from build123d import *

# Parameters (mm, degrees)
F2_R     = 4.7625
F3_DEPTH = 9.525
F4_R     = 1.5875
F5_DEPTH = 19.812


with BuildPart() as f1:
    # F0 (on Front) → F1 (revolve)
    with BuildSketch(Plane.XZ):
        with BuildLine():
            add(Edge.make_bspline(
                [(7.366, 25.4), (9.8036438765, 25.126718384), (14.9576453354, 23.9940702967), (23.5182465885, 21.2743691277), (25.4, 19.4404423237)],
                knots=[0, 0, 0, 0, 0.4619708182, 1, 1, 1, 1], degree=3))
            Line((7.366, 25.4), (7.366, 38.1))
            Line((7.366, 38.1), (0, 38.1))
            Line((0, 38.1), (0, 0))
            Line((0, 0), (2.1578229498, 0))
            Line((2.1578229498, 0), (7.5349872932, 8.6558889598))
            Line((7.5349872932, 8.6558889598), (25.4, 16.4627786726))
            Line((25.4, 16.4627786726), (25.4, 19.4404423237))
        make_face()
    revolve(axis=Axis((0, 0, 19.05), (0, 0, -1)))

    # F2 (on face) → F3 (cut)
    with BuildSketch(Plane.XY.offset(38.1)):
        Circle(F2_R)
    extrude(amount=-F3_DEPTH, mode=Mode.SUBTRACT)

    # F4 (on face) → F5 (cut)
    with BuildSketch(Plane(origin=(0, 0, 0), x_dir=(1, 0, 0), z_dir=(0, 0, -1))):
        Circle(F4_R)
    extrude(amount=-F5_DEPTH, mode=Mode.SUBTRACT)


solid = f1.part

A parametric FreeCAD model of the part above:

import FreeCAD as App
import Part
import Sketcher

V = App.Vector
Q = App.Units.Quantity

doc = App.newDocument("Part")
body = doc.addObject("PartDesign::Body", "Body")

# Sketch on XZ plane
sketch1 = doc.addObject("Sketcher::SketchObject", "Sketch")
body.addObject(sketch1)
sketch1.AttachmentSupport = (doc.XZ_Plane, [""])
sketch1.MapMode = "FlatFace"
sketch1.addGeometry(Part.BSplineCurve([V(7.366, 25.4, 0), V(9.803644, 25.126718, 0), V(14.957645, 23.99407, 0), V(23.518247, 21.274369, 0), V(25.4, 19.440442, 0)], [4, 1, 4], [0, 0.461970818, 1], False, 3, [1, 1, 1, 1, 1], False), False)
sketch1.addGeometry(Part.LineSegment(V(7.366, 25.4, 0), V(7.366, 38.1, 0)), False)
sketch1.addGeometry(Part.LineSegment(V(7.366, 38.1, 0), V(0, 38.1, 0)), False)
sketch1.addGeometry(Part.LineSegment(V(0, 38.1, 0), V(0, 0, 0)), False)
sketch1.addGeometry(Part.LineSegment(V(0, 0, 0), V(2.157823, 0, 0)), False)
sketch1.addGeometry(Part.LineSegment(V(2.157823, 0, 0), V(7.534987, 8.655889, 0)), False)
sketch1.addGeometry(Part.LineSegment(V(7.534987, 8.655889, 0), V(25.4, 16.462779, 0)), False)
sketch1.addGeometry(Part.LineSegment(V(25.4, 16.462779, 0), V(25.4, 19.440442, 0)), False)
sketch1.addConstraint(Sketcher.Constraint("Block", 0))
sketch1.addConstraint(Sketcher.Constraint("Coincident", 0, 1, 1, 1))
sketch1.addConstraint(Sketcher.Constraint("Coincident", 1, 2, 2, 1))
sketch1.addConstraint(Sketcher.Constraint("Coincident", 2, 2, 3, 1))
sketch1.addConstraint(Sketcher.Constraint("Coincident", 3, 2, 4, 1))
sketch1.addConstraint(Sketcher.Constraint("Coincident", 4, 2, 5, 1))
sketch1.addConstraint(Sketcher.Constraint("Coincident", 5, 2, 6, 1))
sketch1.addConstraint(Sketcher.Constraint("Coincident", 6, 2, 7, 1))
sketch1.addConstraint(Sketcher.Constraint("Coincident", 7, 2, 0, 2))
sketch1.addConstraint(Sketcher.Constraint("Vertical", 1))
sketch1.addConstraint(Sketcher.Constraint("Horizontal", 2))
sketch1.addConstraint(Sketcher.Constraint("Vertical", 3))
sketch1.addConstraint(Sketcher.Constraint("Horizontal", 4))
sketch1.addConstraint(Sketcher.Constraint("Vertical", 7))
sketch1.addConstraint(Sketcher.Constraint("Coincident", 3, 2, -1, 1))
sketch1.addConstraint(Sketcher.Constraint("DistanceY", 1, 1, 1, 2, Q("0.5 in")))
sketch1.addConstraint(Sketcher.Constraint("Distance", 5, 10.190108))
sketch1.addConstraint(Sketcher.Constraint("DistanceX", 4, 1, 4, 2, 2.157823))
sketch1.addConstraint(Sketcher.Constraint("DistanceY", 7, 1, 7, 2, 2.977664))
sketch1.addConstraint(Sketcher.Constraint("DistanceY", -1, 1, 5, 2, 8.655889))
revolution = doc.addObject("PartDesign::Revolution", "Revolution")
body.addObject(revolution)
revolution.Profile = sketch1
revolution.ReferenceAxis = (sketch1, ["V_Axis"])
revolution.Angle = 360

# Sketch on XY plane
sketch2 = doc.addObject("Sketcher::SketchObject", "Sketch001")
body.addObject(sketch2)
sketch2.AttachmentSupport = (doc.XY_Plane, [""])
sketch2.MapMode = "FlatFace"
sketch2.AttachmentOffset = App.Placement(V(0, 0, 1.5 * 25.4), App.Rotation())
sketch2.addGeometry(Part.Circle(V(0, 0, 0), V(0, 0, 1), 4.8), False)
sketch2.addConstraint(Sketcher.Constraint("Coincident", 0, 3, -1, 1))
sketch2.addConstraint(Sketcher.Constraint("Diameter", 0, Q("0.375 in")))
pocket1 = doc.addObject("PartDesign::Pocket", "Pocket")
body.addObject(pocket1)
pocket1.Profile = sketch2
pocket1.Length = Q("0.375 in")

# Sketch on XY plane
sketch3 = doc.addObject("Sketcher::SketchObject", "Sketch002")
body.addObject(sketch3)
sketch3.AttachmentSupport = (doc.XY_Plane, [""])
sketch3.MapMode = "FlatFace"
sketch3.addGeometry(Part.Circle(V(0, 0, 0), V(0, 0, 1), 1.6), False)
sketch3.addConstraint(Sketcher.Constraint("Coincident", 0, 3, -1, 1))
sketch3.addConstraint(Sketcher.Constraint("Diameter", 0, Q("0.125 in")))
pocket2 = doc.addObject("PartDesign::Pocket", "Pocket001")
body.addObject(pocket2)
pocket2.Profile = sketch3
pocket2.Length = Q("0.78 in")
pocket2.Reversed = True

doc.recompute()
